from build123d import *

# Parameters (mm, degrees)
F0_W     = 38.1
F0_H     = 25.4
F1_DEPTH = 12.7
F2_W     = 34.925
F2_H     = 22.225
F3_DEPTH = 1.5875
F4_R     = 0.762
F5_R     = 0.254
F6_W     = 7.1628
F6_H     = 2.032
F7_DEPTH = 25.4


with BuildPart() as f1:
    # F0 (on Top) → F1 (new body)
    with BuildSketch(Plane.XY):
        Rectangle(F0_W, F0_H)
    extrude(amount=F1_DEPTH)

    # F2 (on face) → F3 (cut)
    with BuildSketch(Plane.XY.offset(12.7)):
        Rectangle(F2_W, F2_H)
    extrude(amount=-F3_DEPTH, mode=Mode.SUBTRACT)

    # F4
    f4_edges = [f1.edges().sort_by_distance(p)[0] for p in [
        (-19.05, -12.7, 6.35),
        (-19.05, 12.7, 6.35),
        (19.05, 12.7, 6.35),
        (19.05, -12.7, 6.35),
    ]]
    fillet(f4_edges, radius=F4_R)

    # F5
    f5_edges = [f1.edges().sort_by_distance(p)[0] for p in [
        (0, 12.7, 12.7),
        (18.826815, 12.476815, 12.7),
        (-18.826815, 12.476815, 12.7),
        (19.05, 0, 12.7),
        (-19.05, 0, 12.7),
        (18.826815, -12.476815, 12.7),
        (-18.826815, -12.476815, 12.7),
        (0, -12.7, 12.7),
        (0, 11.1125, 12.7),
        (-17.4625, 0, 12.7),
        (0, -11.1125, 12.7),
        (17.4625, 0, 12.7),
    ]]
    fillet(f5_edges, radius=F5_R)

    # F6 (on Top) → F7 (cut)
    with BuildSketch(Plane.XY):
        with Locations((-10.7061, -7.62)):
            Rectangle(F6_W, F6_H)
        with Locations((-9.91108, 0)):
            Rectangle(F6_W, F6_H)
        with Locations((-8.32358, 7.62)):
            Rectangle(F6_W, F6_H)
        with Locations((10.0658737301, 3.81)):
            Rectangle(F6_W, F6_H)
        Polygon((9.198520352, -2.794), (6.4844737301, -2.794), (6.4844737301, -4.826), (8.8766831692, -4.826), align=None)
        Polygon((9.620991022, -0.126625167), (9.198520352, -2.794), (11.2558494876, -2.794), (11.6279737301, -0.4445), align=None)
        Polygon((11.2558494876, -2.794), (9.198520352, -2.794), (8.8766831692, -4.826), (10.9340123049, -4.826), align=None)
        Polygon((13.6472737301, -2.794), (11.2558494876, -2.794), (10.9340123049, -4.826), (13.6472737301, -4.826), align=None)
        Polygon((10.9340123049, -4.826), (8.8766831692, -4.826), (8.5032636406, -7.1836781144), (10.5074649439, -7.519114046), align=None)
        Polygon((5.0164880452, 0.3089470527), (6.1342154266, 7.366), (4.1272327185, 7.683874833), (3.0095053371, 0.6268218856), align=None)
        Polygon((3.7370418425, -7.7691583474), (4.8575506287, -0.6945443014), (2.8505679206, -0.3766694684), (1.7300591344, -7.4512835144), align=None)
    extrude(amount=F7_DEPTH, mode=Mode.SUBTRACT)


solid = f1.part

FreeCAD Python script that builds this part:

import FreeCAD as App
import Part
import Sketcher
from FreeCAD import Vector
Q = App.Units.Quantity


def edges_at(feature, points):
    """Names of the edges that pass closest to the given points."""
    edges = feature.Shape.Edges
    near = lambda p: min(range(len(edges)), key=lambda i: edges[i].distToShape(Part.Vertex(*p))[0])
    return sorted({f"Edge{near(p) + 1}" for p in points})

doc = App.newDocument("Part")
body = doc.addObject("PartDesign::Body", "Body")

# Sketch on XY plane
sketch1 = body.newObject("Sketcher::SketchObject", "Sketch")
sketch1.AttachmentSupport = (doc.getObject("XY_Plane"), [""])
sketch1.MapMode = "FlatFace"
sketch1.addGeometry(Part.LineSegment(Vector(-19, 13, 0), Vector(-19, -13, 0)), False)
sketch1.addGeometry(Part.LineSegment(Vector(-19, -13, 0), Vector(19, -13, 0)), False)
sketch1.addGeometry(Part.LineSegment(Vector(19, -13, 0), Vector(19, 13, 0)), False)
sketch1.addGeometry(Part.LineSegment(Vector(19, 13, 0), Vector(-19, 13, 0)), False)
sketch1.addConstraint(Sketcher.Constraint("Coincident", 0, 2, 1, 1))
sketch1.addConstraint(Sketcher.Constraint("Coincident", 1, 2, 2, 1))
sketch1.addConstraint(Sketcher.Constraint("Coincident", 2, 2, 3, 1))
sketch1.addConstraint(Sketcher.Constraint("Coincident", 3, 2, 0, 1))
sketch1.addConstraint(Sketcher.Constraint("Vertical", 0))
sketch1.addConstraint(Sketcher.Constraint("Horizontal", 1))
sketch1.addConstraint(Sketcher.Constraint("Vertical", 2))
sketch1.addConstraint(Sketcher.Constraint("Horizontal", 3))
sketch1.addConstraint(Sketcher.Constraint("Symmetric", 0, 2, 2, 2, -1, 1))
sketch1.addConstraint(Sketcher.Constraint("DistanceY", 0, 2, 0, 1, Q("1 in")))
sketch1.addConstraint(Sketcher.Constraint("DistanceX", 1, 1, 1, 2, Q("1.5 in")))
pad1 = body.newObject("PartDesign::Pad", "Pad")
pad1.Profile = sketch1
pad1.Length = Q("0.5 in")

# Sketch on XY plane
sketch2 = body.newObject("Sketcher::SketchObject", "Sketch001")
sketch2.AttachmentSupport = (doc.getObject("XY_Plane"), [""])
sketch2.MapMode = "FlatFace"
sketch2.AttachmentOffset = App.Placement(Vector(0, 0, 0.5 * 25.4), App.Rotation())
sketch2.addGeometry(Part.LineSegment(Vector(-17, 11, 0), Vector(-17, -11, 0)), False)
sketch2.addGeometry(Part.LineSegment(Vector(-17, -11, 0), Vector(17, -11, 0)), False)
sketch2.addGeometry(Part.LineSegment(Vector(17, -11, 0), Vector(17, 11, 0)), False)
sketch2.addGeometry(Part.LineSegment(Vector(17, 11, 0), Vector(-17, 11, 0)), False)
sketch2.addConstraint(Sketcher.Constraint("Coincident", 0, 2, 1, 1))
sketch2.addConstraint(Sketcher.Constraint("Coincident", 1, 2, 2, 1))
sketch2.addConstraint(Sketcher.Constraint("Coincident", 2, 2, 3, 1))
sketch2.addConstraint(Sketcher.Constraint("Coincident", 3, 2, 0, 1))
sketch2.addConstraint(Sketcher.Constraint("Vertical", 0))
sketch2.addConstraint(Sketcher.Constraint("Horizontal", 1))
sketch2.addConstraint(Sketcher.Constraint("Vertical", 2))
sketch2.addConstraint(Sketcher.Constraint("Horizontal", 3))
sketch2.addConstraint(Sketcher.Constraint("Symmetric", 0, 2, 2, 2, -1, 1))
sketch2.addConstraint(Sketcher.Constraint("DistanceX", 1, 1, 1, 2, Q("1.375 in")))
sketch2.addConstraint(Sketcher.Constraint("DistanceY", 0, 2, 0, 1, Q("0.875 in")))
pocket1 = body.newObject("PartDesign::Pocket", "Pocket")
pocket1.Profile = sketch2
pocket1.Length = Q("0.0625 in")
doc.recompute()

fillet = body.newObject("PartDesign::Fillet", "Fillet")
fillet.Base = (pocket1, edges_at(pocket1, [
    (-19.05, -12.7, 6.35),
    (-19.05, 12.7, 6.35),
    (19.05, 12.7, 6.35),
    (19.05, -12.7, 6.35),
]))
fillet.Radius = Q("0.03 in")
doc.recompute()

fillet2 = body.newObject("PartDesign::Fillet", "Fillet001")
fillet2.Base = (fillet, edges_at(fillet, [
    (0, 12.7, 12.7),
    (18.827, 12.477, 12.7),
    (-18.827, 12.477, 12.7),
    (19.05, 0, 12.7),
    (-19.05, 0, 12.7),
    (18.827, -12.477, 12.7),
    (-18.827, -12.477, 12.7),
    (0, -12.7, 12.7),
    (0, 11.113, 12.7),
    (-17.462, 0, 12.7),
    (0, -11.113, 12.7),
    (17.462, 0, 12.7),
]))
fillet2.Radius = Q("0.01 in")

# Sketch on XY plane
sketch3 = body.newObject("Sketcher::SketchObject", "Sketch002")
sketch3.AttachmentSupport = (doc.getObject("XY_Plane"), [""])
sketch3.MapMode = "FlatFace"
sketch3.addGeometry(Part.LineSegment(Vector(-14.3, -6.6, 0), Vector(-14.3, -8.6, 0)), False)
sketch3.addGeometry(Part.LineSegment(Vector(-14.3, -8.6, 0), Vector(-7.1, -8.6, 0)), False)
sketch3.addGeometry(Part.LineSegment(Vector(-7.1, -8.6, 0), Vector(-7.1, -6.6, 0)), False)
sketch3.addGeometry(Part.LineSegment(Vector(-7.1, -6.6, 0), Vector(-14.3, -6.6, 0)), False)
sketch3.addGeometry(Part.LineSegment(Vector(-13.5, 1, 0), Vector(-13.5, -1, 0)), False)
sketch3.addGeometry(Part.LineSegment(Vector(-13.5, -1, 0), Vector(-6.3, -1, 0)), False)
sketch3.addGeometry(Part.LineSegment(Vector(-6.3, -1, 0), Vector(-6.3, 1, 0)), False)
sketch3.addGeometry(Part.LineSegment(Vector(-6.3, 1, 0), Vector(-13.5, 1, 0)), False)
sketch3.addGeometry(Part.LineSegment(Vector(-11.9, 8.6, 0), Vector(-11.9, 6.6, 0)), False)
sketch3.addGeometry(Part.LineSegment(Vector(-11.9, 6.6, 0), Vector(-4.7, 6.6, 0)), False)
sketch3.addGeometry(Part.LineSegment(Vector(-4.7, 6.6, 0), Vector(-4.7, 8.6, 0)), False)
sketch3.addGeometry(Part.LineSegment(Vector(-4.7, 8.6, 0), Vector(-11.9, 8.6, 0)), False)
sketch3.addGeometry(Part.LineSegment(Vector(6.5, 4.8, 0), Vector(6.5, 2.8, 0)), False)
sketch3.addGeometry(Part.LineSegment(Vector(6.5, 2.8, 0), Vector(13.6, 2.8, 0)), False)
sketch3.addGeometry(Part.LineSegment(Vector(13.6, 2.8, 0), Vector(13.6, 4.8, 0)), False)
sketch3.addGeometry(Part.LineSegment(Vector(13.6, 4.8, 0), Vector(6.5, 4.8, 0)), False)
sketch3.addGeometry(Part.LineSegment(Vector(9.2, -2.8, 0), Vector(6.5, -2.8, 0)), False)
sketch3.addGeometry(Part.LineSegment(Vector(6.5, -2.8, 0), Vector(6.5, -4.8, 0)), False)
sketch3.addGeometry(Part.LineSegment(Vector(6.5, -4.8, 0), Vector(8.9, -4.8, 0)), False)
sketch3.addGeometry(Part.LineSegment(Vector(8.9, -4.8, 0), Vector(8.5, -7.2, 0)), False)
sketch3.addGeometry(Part.LineSegment(Vector(8.5, -7.2, 0), Vector(10.5, -7.5, 0)), False)
sketch3.addGeometry(Part.LineSegment(Vector(10.5, -7.5, 0), Vector(10.9, -4.8, 0)), False)
sketch3.addGeometry(Part.LineSegment(Vector(10.9, -4.8, 0), Vector(13.6, -4.8, 0)), False)
sketch3.addGeometry(Part.LineSegment(Vector(13.6, -4.8, 0), Vector(13.6, -2.8, 0)), False)
sketch3.addGeometry(Part.LineSegment(Vector(13.6, -2.8, 0), Vector(11.3, -2.8, 0)), False)
sketch3.addGeometry(Part.LineSegment(Vector(11.3, -2.8, 0), Vector(11.6, -0.4, 0)), False)
sketch3.addGeometry(Part.LineSegment(Vector(11.6, -0.4, 0), Vector(9.6, -0.1, 0)), False)
sketch3.addGeometry(Part.LineSegment(Vector(9.6, -0.1, 0), Vector(9.2, -2.8, 0)), False)
sketch3.addGeometry(Part.LineSegment(Vector(5, 0.3, 0), Vector(6.1, 7.4, 0)), False)
sketch3.addGeometry(Part.LineSegment(Vector(6.1, 7.4, 0), Vector(4.1, 7.7, 0)), False)
sketch3.addGeometry(Part.LineSegment(Vector(4.1, 7.7, 0), Vector(3, 0.6, 0)), False)
sketch3.addGeometry(Part.LineSegment(Vector(3, 0.6, 0), Vector(5, 0.3, 0)), False)
sketch3.addGeometry(Part.LineSegment(Vector(3.7, -7.8, 0), Vector(4.9, -0.7, 0)), False)
sketch3.addGeometry(Part.LineSegment(Vector(4.9, -0.7, 0), Vector(2.9, -0.4, 0)), False)
sketch3.addGeometry(Part.LineSegment(Vector(2.9, -0.4, 0), Vector(1.7, -7.5, 0)), False)
sketch3.addGeometry(Part.LineSegment(Vector(1.7, -7.5, 0), Vector(3.7, -7.8, 0)), False)
sketch3.addConstraint(Sketcher.Constraint("Coincident", 0, 2, 1, 1))
sketch3.addConstraint(Sketcher.Constraint("Coincident", 1, 2, 2, 1))
sketch3.addConstraint(Sketcher.Constraint("Coincident", 2, 2, 3, 1))
sketch3.addConstraint(Sketcher.Constraint("Coincident", 3, 2, 0, 1))
sketch3.addConstraint(Sketcher.Constraint("Coincident", 4, 2, 5, 1))
sketch3.addConstraint(Sketcher.Constraint("Coincident", 5, 2, 6, 1))
sketch3.addConstraint(Sketcher.Constraint("Coincident", 6, 2, 7, 1))
sketch3.addConstraint(Sketcher.Constraint("Coincident", 7, 2, 4, 1))
sketch3.addConstraint(Sketcher.Constraint("Coincident", 8, 2, 9, 1))
sketch3.addConstraint(Sketcher.Constraint("Coincident", 9, 2, 10, 1))
sketch3.addConstraint(Sketcher.Constraint("Coincident", 10, 2, 11, 1))
sketch3.addConstraint(Sketcher.Constraint("Coincident", 11, 2, 8, 1))
sketch3.addConstraint(Sketcher.Constraint("Coincident", 12, 2, 13, 1))
sketch3.addConstraint(Sketcher.Constraint("Coincident", 13, 2, 14, 1))
sketch3.addConstraint(Sketcher.Constraint("Coincident", 14, 2, 15, 1))
sketch3.addConstraint(Sketcher.Constraint("Coincident", 15, 2, 12, 1))
sketch3.addConstraint(Sketcher.Constraint("Coincident", 16, 2, 17, 1))
sketch3.addConstraint(Sketcher.Constraint("Coincident", 17, 2, 18, 1))
sketch3.addConstraint(Sketcher.Constraint("Coincident", 18, 2, 19, 1))
sketch3.addConstraint(Sketcher.Constraint("Coincident", 19, 2, 20, 1))
sketch3.addConstraint(Sketcher.Constraint("Coincident", 20, 2, 21, 1))
sketch3.addConstraint(Sketcher.Constraint("Coincident", 21, 2, 22, 1))
sketch3.addConstraint(Sketcher.Constraint("Coincident", 22, 2, 23, 1))
sketch3.addConstraint(Sketcher.Constraint("Coincident", 23, 2, 24, 1))
sketch3.addConstraint(Sketcher.Constraint("Coincident", 24, 2, 25, 1))
sketch3.addConstraint(Sketcher.Constraint("Coincident", 25, 2, 26, 1))
sketch3.addConstraint(Sketcher.Constraint("Coincident", 26, 2, 27, 1))
sketch3.addConstraint(Sketcher.Constraint("Coincident", 27, 2, 16, 1))
sketch3.addConstraint(Sketcher.Constraint("Coincident", 28, 2, 29, 1))
sketch3.addConstraint(Sketcher.Constraint("Coincident", 29, 2, 30, 1))
sketch3.addConstraint(Sketcher.Constraint("Coincident", 30, 2, 31, 1))
sketch3.addConstraint(Sketcher.Constraint("Coincident", 31, 2, 28, 1))
sketch3.addConstraint(Sketcher.Constraint("Coincident", 32, 2, 33, 1))
sketch3.addConstraint(Sketcher.Constraint("Coincident", 33, 2, 34, 1))
sketch3.addConstraint(Sketcher.Constraint("Coincident", 34, 2, 35, 1))
sketch3.addConstraint(Sketcher.Constraint("Coincident", 35, 2, 32, 1))
sketch3.addConstraint(Sketcher.Constraint("Vertical", 0))
sketch3.addConstraint(Sketcher.Constraint("Horizontal", 1))
sketch3.addConstraint(Sketcher.Constraint("Vertical", 2))
sketch3.addConstraint(Sketcher.Constraint("Horizontal", 3))
sketch3.addConstraint(Sketcher.Constraint("Vertical", 4))
sketch3.addConstraint(Sketcher.Constraint("Horizontal", 5))
sketch3.addConstraint(Sketcher.Constraint("Vertical", 6))
sketch3.addConstraint(Sketcher.Constraint("Horizontal", 7))
sketch3.addConstraint(Sketcher.Constraint("Vertical", 8))
sketch3.addConstraint(Sketcher.Constraint("Horizontal", 9))
sketch3.addConstraint(Sketcher.Constraint("Vertical", 10))
sketch3.addConstraint(Sketcher.Constraint("Horizontal", 11))
sketch3.addConstraint(Sketcher.Constraint("Vertical", 12))
sketch3.addConstraint(Sketcher.Constraint("Horizontal", 13))
sketch3.addConstraint(Sketcher.Constraint("Vertical", 14))
sketch3.addConstraint(Sketcher.Constraint("Horizontal", 15))
sketch3.addConstraint(Sketcher.Constraint("Horizontal", 16))
sketch3.addConstraint(Sketcher.Constraint("Vertical", 17))
sketch3.addConstraint(Sketcher.Constraint("Horizontal", 18))
sketch3.addConstraint(Sketcher.Constraint("Horizontal", 22))
sketch3.addConstraint(Sketcher.Constraint("Vertical", 23))
sketch3.addConstraint(Sketcher.Constraint("Horizontal", 24))
sketch3.addConstraint(Sketcher.Constraint("Symmetric", 12, 2, 16, 2, -1))
sketch3.addConstraint(Sketcher.Constraint("Symmetric", 14, 2, 22, 2, -1))
sketch3.addConstraint(Sketcher.Constraint("Parallel", 19, 21))
sketch3.addConstraint(Sketcher.Constraint("Parallel", 21, 25))
sketch3.addConstraint(Sketcher.Constraint("Perpendicular", 25, 26))
sketch3.addConstraint(Sketcher.Constraint("Perpendicular", 26, 27))
sketch3.addConstraint(Sketcher.Constraint("Parallel", 27, 28))
sketch3.addConstraint(Sketcher.Constraint("Perpendicular", 28, 29))
sketch3.addConstraint(Sketcher.Constraint("Perpendicular", 29, 30))
sketch3.addConstraint(Sketcher.Constraint("Perpendicular", 30, 31))
sketch3.addConstraint(Sketcher.Constraint("Perpendicular", 31, 32))
sketch3.addConstraint(Sketcher.Constraint("Perpendicular", 32, 33))
sketch3.addConstraint(Sketcher.Constraint("Perpendicular", 33, 34))
sketch3.addConstraint(Sketcher.Constraint("Perpendicular", 34, 35))
sketch3.addConstraint(Sketcher.Constraint("Horizontal", 18, 2, 21, 2))
sketch3.addConstraint(Sketcher.Constraint("Horizontal", 16, 2, 23, 2))
sketch3.addConstraint(Sketcher.Constraint("Equal", 3, 5))
sketch3.addConstraint(Sketcher.Constraint("Equal", 7, 9))
sketch3.addConstraint(Sketcher.Constraint("Equal", 11, 13))
sketch3.addConstraint(Sketcher.Constraint("Equal", 2, 4))
sketch3.addConstraint(Sketcher.Constraint("Equal", 6, 8))
sketch3.addConstraint(Sketcher.Constraint("Equal", 10, 12))
sketch3.addConstraint(Sketcher.Constraint("Equal", 26, 29))
sketch3.addConstraint(Sketcher.Constraint("Equal", 31, 33))
sketch3.addConstraint(Sketcher.Constraint("Angle", 19, Q("-99 deg")))
sketch3.addConstraint(Sketcher.Constraint("DistanceY", 0, 2, 0, 1, Q("0.08 in")))
sketch3.addConstraint(Sketcher.Constraint("DistanceY", 0, 2, 4, 2, Q("0.3 in")))
sketch3.addConstraint(Sketcher.Constraint("DistanceY", 4, 2, 8, 2, Q("0.3 in")))
sketch3.addConstraint(Sketcher.Constraint("DistanceY", 16, 2, 15, 2, Q("0.3 in")))
sketch3.addConstraint(Sketcher.Constraint("DistanceY", 15, 2, 28, 2, Q("0.1 in")))
sketch3.addConstraint(Sketcher.Constraint("Distance", 26, Q("0.08 in")))
sketch3.addConstraint(Sketcher.Constraint("DistanceX", 1, 1, 1, 2, Q("0.282 in")))
sketch3.addConstraint(Sketcher.Constraint("DistanceY", 0, 2, -1, 1, Q("0.34 in")))
sketch3.addConstraint(Sketcher.Constraint("Distance", 32, Q("0.282 in")))
sketch3.addConstraint(Sketcher.Constraint("DistanceX", 0, 2, -1, 1, Q("0.5625 in")))
sketch3.addConstraint(Sketcher.Constraint("DistanceX", 7, 2, 8, 2, Q("0.0625 in")))
sketch3.addConstraint(Sketcher.Constraint("Distance", 28, Q("0.2813 in")))
sketch3.addConstraint(Sketcher.Constraint("DistanceX", 4, 2, -1, 1, Q("0.5312 in")))
sketch3.addConstraint(Sketcher.Constraint("DistanceY", 25, 2, -1, 1, Q("0.0175 in")))
sketch3.addConstraint(Sketcher.Constraint("DistanceX", 25, 2, 23, 2, Q("0.0795 in")))
sketch3.addConstraint(Sketcher.Constraint("DistanceX", 18, 1, 18, 2, Q("2.392209 mm")))
sketch3.addConstraint(Sketcher.Constraint("DistanceX", 22, 1, 22, 2, Q("2.713261 mm")))
sketch3.addConstraint(Sketcher.Constraint("DistanceX", 19, 2, 20, 2, Q("2.004201 mm")))
sketch3.addConstraint(Sketcher.Constraint("DistanceY", 19, 2, -1, 1, Q("7.183678 mm")))
sketch3.addConstraint(Sketcher.Constraint("DistanceX", -1, 1, 24, 2, Q("11.255849 mm")))
sketch3.addConstraint(Sketcher.Constraint("DistanceX", -1, 1, 31, 2, Q("5.016488 mm")))
sketch3.addConstraint(Sketcher.Constraint("DistanceX", -1, 1, 32, 2, Q("4.857551 mm")))
sketch3.addConstraint(Sketcher.Constraint("DistanceY", 33, 2, -1, 1, Q("0.376669 mm")))
pocket2 = body.newObject("PartDesign::Pocket", "Pocket001")
pocket2.Profile = sketch3
pocket2.Length = Q("1 in")
pocket2.Reversed = True

doc.recompute()
